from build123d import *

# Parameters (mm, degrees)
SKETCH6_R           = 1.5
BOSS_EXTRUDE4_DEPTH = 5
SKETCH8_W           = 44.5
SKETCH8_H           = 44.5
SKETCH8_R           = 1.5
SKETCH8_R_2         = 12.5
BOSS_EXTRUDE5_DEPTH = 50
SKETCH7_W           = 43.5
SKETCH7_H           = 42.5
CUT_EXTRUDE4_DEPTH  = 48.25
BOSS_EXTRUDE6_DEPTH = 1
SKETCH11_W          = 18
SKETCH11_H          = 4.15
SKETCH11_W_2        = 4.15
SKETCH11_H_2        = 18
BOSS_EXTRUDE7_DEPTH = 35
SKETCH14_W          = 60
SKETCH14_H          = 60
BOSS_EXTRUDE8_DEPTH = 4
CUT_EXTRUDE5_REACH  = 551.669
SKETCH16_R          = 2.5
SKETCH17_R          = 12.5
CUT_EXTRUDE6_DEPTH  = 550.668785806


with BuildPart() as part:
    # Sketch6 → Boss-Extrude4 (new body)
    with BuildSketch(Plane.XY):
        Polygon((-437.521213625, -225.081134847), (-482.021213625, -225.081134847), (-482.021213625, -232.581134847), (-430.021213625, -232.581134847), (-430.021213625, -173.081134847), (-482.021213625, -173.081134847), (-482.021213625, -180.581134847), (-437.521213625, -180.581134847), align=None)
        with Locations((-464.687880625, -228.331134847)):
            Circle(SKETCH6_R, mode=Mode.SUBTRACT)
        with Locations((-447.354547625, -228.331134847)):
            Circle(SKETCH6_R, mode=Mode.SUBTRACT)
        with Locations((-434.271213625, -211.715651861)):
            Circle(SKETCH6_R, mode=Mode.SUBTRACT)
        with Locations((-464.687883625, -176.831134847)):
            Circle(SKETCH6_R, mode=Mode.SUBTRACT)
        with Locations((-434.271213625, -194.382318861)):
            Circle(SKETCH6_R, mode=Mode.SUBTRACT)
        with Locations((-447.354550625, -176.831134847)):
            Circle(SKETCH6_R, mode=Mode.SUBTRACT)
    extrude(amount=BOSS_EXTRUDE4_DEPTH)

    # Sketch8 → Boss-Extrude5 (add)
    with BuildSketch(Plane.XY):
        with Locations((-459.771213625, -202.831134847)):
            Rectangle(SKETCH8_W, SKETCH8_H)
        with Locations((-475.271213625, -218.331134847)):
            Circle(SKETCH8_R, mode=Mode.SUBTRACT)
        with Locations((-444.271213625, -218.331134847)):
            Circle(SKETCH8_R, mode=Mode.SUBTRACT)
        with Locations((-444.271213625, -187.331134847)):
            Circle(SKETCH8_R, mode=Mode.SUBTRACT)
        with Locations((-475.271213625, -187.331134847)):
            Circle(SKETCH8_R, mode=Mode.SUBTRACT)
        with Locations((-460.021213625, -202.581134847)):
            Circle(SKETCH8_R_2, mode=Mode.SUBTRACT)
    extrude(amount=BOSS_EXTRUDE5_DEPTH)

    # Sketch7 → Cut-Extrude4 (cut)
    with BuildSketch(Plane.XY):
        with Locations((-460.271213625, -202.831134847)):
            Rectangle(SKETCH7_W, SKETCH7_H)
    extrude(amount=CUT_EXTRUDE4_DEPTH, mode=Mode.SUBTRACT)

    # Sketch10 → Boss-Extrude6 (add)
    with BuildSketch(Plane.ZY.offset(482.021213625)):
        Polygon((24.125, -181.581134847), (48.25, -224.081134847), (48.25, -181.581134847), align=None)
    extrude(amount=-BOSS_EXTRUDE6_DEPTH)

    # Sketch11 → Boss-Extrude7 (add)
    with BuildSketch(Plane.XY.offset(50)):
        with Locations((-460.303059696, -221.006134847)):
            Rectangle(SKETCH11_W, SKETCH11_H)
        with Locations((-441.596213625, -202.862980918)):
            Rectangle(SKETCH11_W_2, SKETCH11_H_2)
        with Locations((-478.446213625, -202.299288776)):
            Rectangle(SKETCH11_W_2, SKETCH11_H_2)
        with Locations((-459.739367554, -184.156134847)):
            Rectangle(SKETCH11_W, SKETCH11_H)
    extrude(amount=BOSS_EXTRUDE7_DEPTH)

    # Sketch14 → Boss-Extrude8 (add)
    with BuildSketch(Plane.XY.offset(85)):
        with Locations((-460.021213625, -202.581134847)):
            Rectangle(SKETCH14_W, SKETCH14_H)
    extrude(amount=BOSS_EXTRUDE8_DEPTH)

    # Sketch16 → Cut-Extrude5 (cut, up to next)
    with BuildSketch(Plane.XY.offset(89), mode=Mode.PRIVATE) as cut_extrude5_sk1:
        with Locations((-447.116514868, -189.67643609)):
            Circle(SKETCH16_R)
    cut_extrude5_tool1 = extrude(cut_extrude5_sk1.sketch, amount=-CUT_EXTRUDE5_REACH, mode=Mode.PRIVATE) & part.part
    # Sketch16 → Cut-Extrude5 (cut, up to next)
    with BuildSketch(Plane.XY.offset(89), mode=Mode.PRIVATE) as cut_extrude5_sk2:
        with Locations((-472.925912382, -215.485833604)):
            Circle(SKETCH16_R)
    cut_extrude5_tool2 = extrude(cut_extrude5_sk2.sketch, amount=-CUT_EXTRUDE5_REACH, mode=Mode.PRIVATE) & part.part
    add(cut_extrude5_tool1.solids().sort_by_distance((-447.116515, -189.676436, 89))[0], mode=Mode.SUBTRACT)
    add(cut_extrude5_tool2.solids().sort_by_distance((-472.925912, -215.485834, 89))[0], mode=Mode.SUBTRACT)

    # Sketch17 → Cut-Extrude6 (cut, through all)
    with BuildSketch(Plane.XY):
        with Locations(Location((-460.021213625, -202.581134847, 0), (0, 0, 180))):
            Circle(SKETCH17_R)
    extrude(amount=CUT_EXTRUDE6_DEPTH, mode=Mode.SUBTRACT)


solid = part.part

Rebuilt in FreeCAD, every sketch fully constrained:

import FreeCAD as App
import Part
import Sketcher
from FreeCAD import Vector

doc = App.newDocument("Part")
body = doc.addObject("PartDesign::Body", "Body")

# Sketch on XY plane
sketch1 = body.newObject("Sketcher::SketchObject", "Sketch")
sketch1.AttachmentSupport = (doc.getObject("XY_Plane"), [""])
sketch1.MapMode = "FlatFace"
sketch1.addGeometry([
    Part.LineSegment(Vector(-437.5, -225.1, 0), Vector(-482, -225.1, 0)),  # 0
    Part.LineSegment(Vector(-482, -225.1, 0), Vector(-482, -232.6, 0)),  # 1
    Part.LineSegment(Vector(-482, -232.6, 0), Vector(-430, -232.6, 0)),  # 2
    Part.LineSegment(Vector(-430, -232.6, 0), Vector(-430, -173.1, 0)),  # 3
    Part.LineSegment(Vector(-430, -173.1, 0), Vector(-482, -173.1, 0)),  # 4
    Part.LineSegment(Vector(-482, -173.1, 0), Vector(-482, -180.6, 0)),  # 5
    Part.LineSegment(Vector(-482, -180.6, 0), Vector(-437.5, -180.6, 0)),  # 6
    Part.LineSegment(Vector(-437.5, -180.6, 0), Vector(-437.5, -225.1, 0)),  # 7
    Part.Circle(Vector(-464.7, -228.3, 0), Vector(0, 0, 1), 1.5),  # 8
    Part.Circle(Vector(-447.4, -228.3, 0), Vector(0, 0, 1), 1.5),  # 9
    Part.Circle(Vector(-434.3, -211.7, 0), Vector(0, 0, 1), 1.5),  # 10
    Part.Circle(Vector(-464.7, -176.8, 0), Vector(0, 0, 1), 1.5),  # 11
    Part.Circle(Vector(-434.3, -194.4, 0), Vector(0, 0, 1), 1.5),  # 12
    Part.Circle(Vector(-447.4, -176.8, 0), Vector(0, 0, 1), 1.5),  # 13
], False)
sketch1.addConstraint([
    Sketcher.Constraint("Coincident", 0, 2, 1, 1),
    Sketcher.Constraint("Coincident", 1, 2, 2, 1),
    Sketcher.Constraint("Coincident", 2, 2, 3, 1),
    Sketcher.Constraint("Coincident", 3, 2, 4, 1),
    Sketcher.Constraint("Coincident", 4, 2, 5, 1),
    Sketcher.Constraint("Coincident", 5, 2, 6, 1),
    Sketcher.Constraint("Coincident", 6, 2, 7, 1),
    Sketcher.Constraint("Coincident", 7, 2, 0, 1),
    Sketcher.Constraint("Horizontal", 0),
    Sketcher.Constraint("Vertical", 1),
    Sketcher.Constraint("Horizontal", 2),
    Sketcher.Constraint("Vertical", 3),
    Sketcher.Constraint("Horizontal", 4),
    Sketcher.Constraint("Vertical", 5),
    Sketcher.Constraint("Horizontal", 6),
    Sketcher.Constraint("Vertical", 7),
    Sketcher.Constraint("Equal", 8, 9),
    Sketcher.Constraint("Equal", 9, 10),
    Sketcher.Constraint("Equal", 10, 11),
    Sketcher.Constraint("Equal", 11, 12),
    Sketcher.Constraint("Equal", 12, 13),
    Sketcher.Constraint("Horizontal", 8, 3, 9, 3),
    Sketcher.Constraint("Horizontal", 11, 3, 13, 3),
    Sketcher.Constraint("Vertical", 10, 3, 12, 3),
    Sketcher.Constraint("Vertical", 1, 2, 4, 2),
    Sketcher.Constraint("Equal", 1, 5),
    Sketcher.Constraint("Equal", 6, 7),
    Sketcher.Constraint("Diameter", 8, 3.0),
    Sketcher.Constraint("DistanceX", 2, 1, 2, 2, 52.0),
    Sketcher.Constraint("DistanceX", 0, 2, 0, 1, 44.5),
    Sketcher.Constraint("DistanceY", 1, 2, 1, 1, 7.5),
    Sketcher.Constraint("DistanceY", 8, 3, 11, 3, 51.5),
    Sketcher.Constraint("DistanceY", 8, 3, 0, 2, 3.25),
    Sketcher.Constraint("DistanceX", 0, 2, 10, 3, 47.75),
    Sketcher.Constraint("DistanceX", 8, 3, -1, 1, 464.687881),
    Sketcher.Constraint("DistanceY", 10, 3, -1, 1, 211.715652),
    Sketcher.Constraint("DistanceY", 12, 3, -1, 1, 194.382319),
    Sketcher.Constraint("DistanceX", 13, 3, -1, 1, 447.354551),
    Sketcher.Constraint("DistanceX", 11, 3, 10, 3, 30.41667),
    Sketcher.Constraint("DistanceY", 8, 3, -1, 1, 228.331135),
    Sketcher.Constraint("DistanceX", 9, 3, -1, 1, 447.354548),
    Sketcher.Constraint("DistanceX", 10, 3, -1, 1, 434.271214),
])
pad1 = body.newObject("PartDesign::Pad", "Pad")
pad1.Profile = sketch1
pad1.Length = 5

# Sketch on XY plane
sketch2 = body.newObject("Sketcher::SketchObject", "Sketch001")
sketch2.AttachmentSupport = (doc.getObject("XY_Plane"), [""])
sketch2.MapMode = "FlatFace"
sketch2.addGeometry([
    Part.LineSegment(Vector(-482, -180.6, 0), Vector(-482, -225.1, 0)),  # 0
    Part.LineSegment(Vector(-482, -225.1, 0), Vector(-437.5, -225.1, 0)),  # 1
    Part.LineSegment(Vector(-437.5, -225.1, 0), Vector(-437.5, -180.6, 0)),  # 2
    Part.LineSegment(Vector(-437.5, -180.6, 0), Vector(-482, -180.6, 0)),  # 3
    Part.Circle(Vector(-475.3, -218.3, 0), Vector(0, 0, 1), 1.5),  # 4
    Part.Circle(Vector(-444.3, -218.3, 0), Vector(0, 0, 1), 1.5),  # 5
    Part.Circle(Vector(-460, -202.6, 0), Vector(0, 0, 1), 12.5),  # 6
    Part.Circle(Vector(-475.3, -187.3, 0), Vector(0, 0, 1), 1.5),  # 7
    Part.Circle(Vector(-444.3, -187.3, 0), Vector(0, 0, 1), 1.5),  # 8
], False)
sketch2.addConstraint([
    Sketcher.Constraint("Coincident", 0, 2, 1, 1),
    Sketcher.Constraint("Coincident", 1, 2, 2, 1),
    Sketcher.Constraint("Coincident", 2, 2, 3, 1),
    Sketcher.Constraint("Coincident", 3, 2, 0, 1),
    Sketcher.Constraint("Vertical", 0),
    Sketcher.Constraint("Horizontal", 1),
    Sketcher.Constraint("Vertical", 2),
    Sketcher.Constraint("Horizontal", 3),
    Sketcher.Constraint("Equal", 4, 5),
    Sketcher.Constraint("Equal", 5, 7),
    Sketcher.Constraint("Equal", 7, 8),
    Sketcher.Constraint("Horizontal", 4, 3, 5, 3),
    Sketcher.Constraint("Horizontal", 7, 3, 8, 3),
    Sketcher.Constraint("Vertical", 4, 3, 7, 3),
    Sketcher.Constraint("Vertical", 5, 3, 8, 3),
    Sketcher.Constraint("Equal", 3, 0),
    Sketcher.Constraint("Diameter", 4, 3.0),
    Sketcher.Constraint("Diameter", 6, 25.0),
    Sketcher.Constraint("DistanceX", 1, 1, 1, 2, 44.5),
    Sketcher.Constraint("DistanceX", 4, 3, 5, 3, 31.0),
    Sketcher.Constraint("DistanceY", 4, 3, 7, 3, 31.0),
    Sketcher.Constraint("DistanceX", 0, 2, 6, 3, 22.0),
    Sketcher.Constraint("DistanceY", 6, 3, 2, 2, 22.0),
    Sketcher.Constraint("DistanceX", 4, 3, 6, 3, 15.25),
    Sketcher.Constraint("DistanceY", 4, 3, 6, 3, 15.75),
    Sketcher.Constraint("DistanceX", 4, 3, -1, 1, 475.271214),
    Sketcher.Constraint("DistanceY", 4, 3, -1, 1, 218.331135),
])
pad2 = body.newObject("PartDesign::Pad", "Pad001")
pad2.Profile = sketch2
pad2.Length = 50

# Sketch on XY plane
sketch3 = body.newObject("Sketcher::SketchObject", "Sketch002")
sketch3.AttachmentSupport = (doc.getObject("XY_Plane"), [""])
sketch3.MapMode = "FlatFace"
sketch3.addGeometry([
    Part.LineSegment(Vector(-482, -182, 0), Vector(-482, -224, 0)),
    Part.LineSegment(Vector(-482, -224, 0), Vector(-439, -224, 0)),
    Part.LineSegment(Vector(-439, -224, 0), Vector(-439, -182, 0)),
    Part.LineSegment(Vector(-439, -182, 0), Vector(-482, -182, 0)),
], False)
sketch3.addConstraint([
    Sketcher.Constraint("Coincident", 0, 2, 1, 1),
    Sketcher.Constraint("Coincident", 1, 2, 2, 1),
    Sketcher.Constraint("Coincident", 2, 2, 3, 1),
    Sketcher.Constraint("Coincident", 3, 2, 0, 1),
    Sketcher.Constraint("Vertical", 0),
    Sketcher.Constraint("Horizontal", 1),
    Sketcher.Constraint("Vertical", 2),
    Sketcher.Constraint("Horizontal", 3),
    Sketcher.Constraint("DistanceX", 1, 1, 1, 2, 43.5),
    Sketcher.Constraint("DistanceY", 0, 2, 0, 1, 42.5),
    Sketcher.Constraint("DistanceX", 0, 2, -1, 1, 482.021214),
    Sketcher.Constraint("DistanceY", 0, 2, -1, 1, 224.081135),
])
pocket1 = body.newObject("PartDesign::Pocket", "Pocket")
pocket1.Profile = sketch3
pocket1.Length = 48.25
pocket1.Reversed = True

# Sketch on YZ plane
sketch4 = body.newObject("Sketcher::SketchObject", "Sketch003")
sketch4.AttachmentSupport = (doc.getObject("YZ_Plane"), [""])
sketch4.MapMode = "FlatFace"
sketch4.AttachmentOffset = App.Placement(Vector(0, 0, -482.021214), App.Rotation())
sketch4.addGeometry([
    Part.LineSegment(Vector(-182, 24, 0), Vector(-224, 48, 0)),
    Part.LineSegment(Vector(-224, 48, 0), Vector(-182, 48, 0)),
    Part.LineSegment(Vector(-182, 48, 0), Vector(-182, 24, 0)),
], False)
sketch4.addConstraint([
    Sketcher.Constraint("Coincident", 0, 2, 1, 1),
    Sketcher.Constraint("Coincident", 1, 2, 2, 1),
    Sketcher.Constraint("Coincident", 2, 2, 0, 1),
    Sketcher.Constraint("Horizontal", 1),
    Sketcher.Constraint("Vertical", 2),
    Sketcher.Constraint("DistanceX", 1, 1, 1, 2, 42.5),
    Sketcher.Constraint("DistanceY", 2, 2, 2, 1, 24.125),
    Sketcher.Constraint("DistanceY", -1, 1, 0, 2, 48.25),
    Sketcher.Constraint("DistanceX", 0, 2, -1, 1, 224.081135),
])
pad3 = body.newObject("PartDesign::Pad", "Pad002")
pad3.Profile = sketch4
pad3.Length = 1

# Sketch on XY plane
sketch5 = body.newObject("Sketcher::SketchObject", "Sketch004")
sketch5.AttachmentSupport = (doc.getObject("XY_Plane"), [""])
sketch5.MapMode = "FlatFace"
sketch5.AttachmentOffset = App.Placement(Vector(0, 0, 50), App.Rotation())
sketch5.addGeometry([
    Part.LineSegment(Vector(-469.3, -218.9, 0), Vector(-469.3, -223.1, 0)),  # 0
    Part.LineSegment(Vector(-469.3, -223.1, 0), Vector(-451.3, -223.1, 0)),  # 1
    Part.LineSegment(Vector(-451.3, -223.1, 0), Vector(-451.3, -218.9, 0)),  # 2
    Part.LineSegment(Vector(-451.3, -218.9, 0), Vector(-469.3, -218.9, 0)),  # 3
    Part.LineSegment(Vector(-443.7, -193.9, 0), Vector(-443.7, -211.9, 0)),  # 4
    Part.LineSegment(Vector(-443.7, -211.9, 0), Vector(-439.5, -211.9, 0)),  # 5
    Part.LineSegment(Vector(-439.5, -211.9, 0), Vector(-439.5, -193.9, 0)),  # 6
    Part.LineSegment(Vector(-439.5, -193.9, 0), Vector(-443.7, -193.9, 0)),  # 7
    Part.LineSegment(Vector(-480.5, -193.3, 0), Vector(-480.5, -211.3, 0)),  # 8
    Part.LineSegment(Vector(-480.5, -211.3, 0), Vector(-476.4, -211.3, 0)),  # 9
    Part.LineSegment(Vector(-476.4, -211.3, 0), Vector(-476.4, -193.3, 0)),  # 10
    Part.LineSegment(Vector(-476.4, -193.3, 0), Vector(-480.5, -193.3, 0)),  # 11
    Part.LineSegment(Vector(-468.7, -182.1, 0), Vector(-468.7, -186.2, 0)),  # 12
    Part.LineSegment(Vector(-468.7, -186.2, 0), Vector(-450.7, -186.2, 0)),  # 13
    Part.LineSegment(Vector(-450.7, -186.2, 0), Vector(-450.7, -182.1, 0)),  # 14
    Part.LineSegment(Vector(-450.7, -182.1, 0), Vector(-468.7, -182.1, 0)),  # 15
], False)
sketch5.addConstraint([
    Sketcher.Constraint("Coincident", 0, 2, 1, 1),
    Sketcher.Constraint("Coincident", 1, 2, 2, 1),
    Sketcher.Constraint("Coincident", 2, 2, 3, 1),
    Sketcher.Constraint("Coincident", 3, 2, 0, 1),
    Sketcher.Constraint("Coincident", 4, 2, 5, 1),
    Sketcher.Constraint("Coincident", 5, 2, 6, 1),
    Sketcher.Constraint("Coincident", 6, 2, 7, 1),
    Sketcher.Constraint("Coincident", 7, 2, 4, 1),
    Sketcher.Constraint("Coincident", 8, 2, 9, 1),
    Sketcher.Constraint("Coincident", 9, 2, 10, 1),
    Sketcher.Constraint("Coincident", 10, 2, 11, 1),
    Sketcher.Constraint("Coincident", 11, 2, 8, 1),
    Sketcher.Constraint("Coincident", 12, 2, 13, 1),
    Sketcher.Constraint("Coincident", 13, 2, 14, 1),
    Sketcher.Constraint("Coincident", 14, 2, 15, 1),
    Sketcher.Constraint("Coincident", 15, 2, 12, 1),
    Sketcher.Constraint("Vertical", 0),
    Sketcher.Constraint("Horizontal", 1),
    Sketcher.Constraint("Vertical", 2),
    Sketcher.Constraint("Horizontal", 3),
    Sketcher.Constraint("Vertical", 4),
    Sketcher.Constraint("Horizontal", 5),
    Sketcher.Constraint("Vertical", 6),
    Sketcher.Constraint("Horizontal", 7),
    Sketcher.Constraint("Vertical", 8),
    Sketcher.Constraint("Horizontal", 9),
    Sketcher.Constraint("Vertical", 10),
    Sketcher.Constraint("Horizontal", 11),
    Sketcher.Constraint("Vertical", 12),
    Sketcher.Constraint("Horizontal", 13),
    Sketcher.Constraint("Vertical", 14),
    Sketcher.Constraint("Horizontal", 15),
    Sketcher.Constraint("Equal", 7, 9),
    Sketcher.Constraint("Equal", 3, 13),
    Sketcher.Constraint("Equal", 11, 0),
    Sketcher.Constraint("Equal", 15, 4),
    Sketcher.Constraint("Equal", 6, 8),
    Sketcher.Constraint("Equal", 2, 12),
    Sketcher.Constraint("DistanceX", 1, 1, 1, 2, 18.0),
    Sketcher.Constraint("DistanceX", 5, 1, 5, 2, 4.15),
    Sketcher.Constraint("DistanceX", 10, 2, 7, 2, 32.7),
    Sketcher.Constraint("DistanceX", 0, 2, -1, 1, 469.30306),
    Sketcher.Constraint("DistanceY", 4, 2, -1, 1, 211.862981),
    Sketcher.Constraint("DistanceY", 8, 2, -1, 1, 211.299289),
    Sketcher.Constraint("DistanceY", 0, 2, -1, 1, 223.081135),
    Sketcher.Constraint("DistanceX", 4, 2, -1, 1, 443.671214),
    Sketcher.Constraint("DistanceX", 12, 2, -1, 1, 468.739368),
    Sketcher.Constraint("DistanceY", 12, 2, -1, 1, 186.231135),
])
pad4 = body.newObject("PartDesign::Pad", "Pad003")
pad4.Profile = sketch5
pad4.Length = 35

# Sketch on XY plane
sketch6 = body.newObject("Sketcher::SketchObject", "Sketch005")
sketch6.AttachmentSupport = (doc.getObject("XY_Plane"), [""])
sketch6.MapMode = "FlatFace"
sketch6.AttachmentOffset = App.Placement(Vector(0, 0, 85), App.Rotation())
sketch6.addGeometry([
    Part.LineSegment(Vector(-490, -173, 0), Vector(-490, -233, 0)),
    Part.LineSegment(Vector(-490, -233, 0), Vector(-430, -233, 0)),
    Part.LineSegment(Vector(-430, -233, 0), Vector(-430, -173, 0)),
    Part.LineSegment(Vector(-430, -173, 0), Vector(-490, -173, 0)),
], False)
sketch6.addConstraint([
    Sketcher.Constraint("Coincident", 0, 2, 1, 1),
    Sketcher.Constraint("Coincident", 1, 2, 2, 1),
    Sketcher.Constraint("Coincident", 2, 2, 3, 1),
    Sketcher.Constraint("Coincident", 3, 2, 0, 1),
    Sketcher.Constraint("Vertical", 0),
    Sketcher.Constraint("Horizontal", 1),
    Sketcher.Constraint("Vertical", 2),
    Sketcher.Constraint("Horizontal", 3),
    Sketcher.Constraint("Equal", 3, 0),
    Sketcher.Constraint("DistanceX", 1, 1, 1, 2, 60.0),
    Sketcher.Constraint("DistanceX", 0, 2, -1, 1, 490.021214),
    Sketcher.Constraint("DistanceY", 0, 2, -1, 1, 232.581135),
])
pad5 = body.newObject("PartDesign::Pad", "Pad004")
pad5.Profile = sketch6
pad5.Length = 4

# Sketch on XY plane
sketch7 = body.newObject("Sketcher::SketchObject", "Sketch006")
sketch7.AttachmentSupport = (doc.getObject("XY_Plane"), [""])
sketch7.MapMode = "FlatFace"
sketch7.AttachmentOffset = App.Placement(Vector(0, 0, 89), App.Rotation())
sketch7.addGeometry(Part.Circle(Vector(-447.1, -189.7, 0), Vector(0, 0, 1), 2.5), False)
sketch7.addConstraint([
    Sketcher.Constraint("Diameter", 0, 5.0),
    Sketcher.Constraint("DistanceX", 0, 3, -1, 1, 447.116515),
    Sketcher.Constraint("DistanceY", 0, 3, -1, 1, 189.676436),
])
pocket2 = body.newObject("PartDesign::Pocket", "Pocket001")
pocket2.Profile = sketch7
pocket2.Type = "UpToFirst"

# Sketch on XY plane
sketch8 = body.newObject("Sketcher::SketchObject", "Sketch007")
sketch8.AttachmentSupport = (doc.getObject("XY_Plane"), [""])
sketch8.MapMode = "FlatFace"
sketch8.AttachmentOffset = App.Placement(Vector(0, 0, 89), App.Rotation())
sketch8.addGeometry(Part.Circle(Vector(-472.9, -215.5, 0), Vector(0, 0, 1), 2.5), False)
sketch8.addConstraint([
    Sketcher.Constraint("Diameter", 0, 5.0),
    Sketcher.Constraint("DistanceX", 0, 3, -1, 1, 472.925912),
    Sketcher.Constraint("DistanceY", 0, 3, -1, 1, 215.485834),
])
pocket3 = body.newObject("PartDesign::Pocket", "Pocket002")
pocket3.Profile = sketch8
pocket3.Type = "UpToFirst"

# Sketch on XY plane
sketch9 = body.newObject("Sketcher::SketchObject", "Sketch008")
sketch9.AttachmentSupport = (doc.getObject("XY_Plane"), [""])
sketch9.MapMode = "FlatFace"
sketch9.addGeometry(Part.Circle(Vector(-460, -203, 0), Vector(0, 0, 1), 12), False)
sketch9.addConstraint([
    Sketcher.Constraint("Diameter", 0, 25.0),
    Sketcher.Constraint("DistanceX", 0, 3, -1, 1, 460.021214),
    Sketcher.Constraint("DistanceY", 0, 3, -1, 1, 202.581135),
])
pocket4 = body.newObject("PartDesign::Pocket", "Pocket003")
pocket4.Profile = sketch9
pocket4.Type = "ThroughAll"
pocket4.Reversed = True

doc.recompute()
